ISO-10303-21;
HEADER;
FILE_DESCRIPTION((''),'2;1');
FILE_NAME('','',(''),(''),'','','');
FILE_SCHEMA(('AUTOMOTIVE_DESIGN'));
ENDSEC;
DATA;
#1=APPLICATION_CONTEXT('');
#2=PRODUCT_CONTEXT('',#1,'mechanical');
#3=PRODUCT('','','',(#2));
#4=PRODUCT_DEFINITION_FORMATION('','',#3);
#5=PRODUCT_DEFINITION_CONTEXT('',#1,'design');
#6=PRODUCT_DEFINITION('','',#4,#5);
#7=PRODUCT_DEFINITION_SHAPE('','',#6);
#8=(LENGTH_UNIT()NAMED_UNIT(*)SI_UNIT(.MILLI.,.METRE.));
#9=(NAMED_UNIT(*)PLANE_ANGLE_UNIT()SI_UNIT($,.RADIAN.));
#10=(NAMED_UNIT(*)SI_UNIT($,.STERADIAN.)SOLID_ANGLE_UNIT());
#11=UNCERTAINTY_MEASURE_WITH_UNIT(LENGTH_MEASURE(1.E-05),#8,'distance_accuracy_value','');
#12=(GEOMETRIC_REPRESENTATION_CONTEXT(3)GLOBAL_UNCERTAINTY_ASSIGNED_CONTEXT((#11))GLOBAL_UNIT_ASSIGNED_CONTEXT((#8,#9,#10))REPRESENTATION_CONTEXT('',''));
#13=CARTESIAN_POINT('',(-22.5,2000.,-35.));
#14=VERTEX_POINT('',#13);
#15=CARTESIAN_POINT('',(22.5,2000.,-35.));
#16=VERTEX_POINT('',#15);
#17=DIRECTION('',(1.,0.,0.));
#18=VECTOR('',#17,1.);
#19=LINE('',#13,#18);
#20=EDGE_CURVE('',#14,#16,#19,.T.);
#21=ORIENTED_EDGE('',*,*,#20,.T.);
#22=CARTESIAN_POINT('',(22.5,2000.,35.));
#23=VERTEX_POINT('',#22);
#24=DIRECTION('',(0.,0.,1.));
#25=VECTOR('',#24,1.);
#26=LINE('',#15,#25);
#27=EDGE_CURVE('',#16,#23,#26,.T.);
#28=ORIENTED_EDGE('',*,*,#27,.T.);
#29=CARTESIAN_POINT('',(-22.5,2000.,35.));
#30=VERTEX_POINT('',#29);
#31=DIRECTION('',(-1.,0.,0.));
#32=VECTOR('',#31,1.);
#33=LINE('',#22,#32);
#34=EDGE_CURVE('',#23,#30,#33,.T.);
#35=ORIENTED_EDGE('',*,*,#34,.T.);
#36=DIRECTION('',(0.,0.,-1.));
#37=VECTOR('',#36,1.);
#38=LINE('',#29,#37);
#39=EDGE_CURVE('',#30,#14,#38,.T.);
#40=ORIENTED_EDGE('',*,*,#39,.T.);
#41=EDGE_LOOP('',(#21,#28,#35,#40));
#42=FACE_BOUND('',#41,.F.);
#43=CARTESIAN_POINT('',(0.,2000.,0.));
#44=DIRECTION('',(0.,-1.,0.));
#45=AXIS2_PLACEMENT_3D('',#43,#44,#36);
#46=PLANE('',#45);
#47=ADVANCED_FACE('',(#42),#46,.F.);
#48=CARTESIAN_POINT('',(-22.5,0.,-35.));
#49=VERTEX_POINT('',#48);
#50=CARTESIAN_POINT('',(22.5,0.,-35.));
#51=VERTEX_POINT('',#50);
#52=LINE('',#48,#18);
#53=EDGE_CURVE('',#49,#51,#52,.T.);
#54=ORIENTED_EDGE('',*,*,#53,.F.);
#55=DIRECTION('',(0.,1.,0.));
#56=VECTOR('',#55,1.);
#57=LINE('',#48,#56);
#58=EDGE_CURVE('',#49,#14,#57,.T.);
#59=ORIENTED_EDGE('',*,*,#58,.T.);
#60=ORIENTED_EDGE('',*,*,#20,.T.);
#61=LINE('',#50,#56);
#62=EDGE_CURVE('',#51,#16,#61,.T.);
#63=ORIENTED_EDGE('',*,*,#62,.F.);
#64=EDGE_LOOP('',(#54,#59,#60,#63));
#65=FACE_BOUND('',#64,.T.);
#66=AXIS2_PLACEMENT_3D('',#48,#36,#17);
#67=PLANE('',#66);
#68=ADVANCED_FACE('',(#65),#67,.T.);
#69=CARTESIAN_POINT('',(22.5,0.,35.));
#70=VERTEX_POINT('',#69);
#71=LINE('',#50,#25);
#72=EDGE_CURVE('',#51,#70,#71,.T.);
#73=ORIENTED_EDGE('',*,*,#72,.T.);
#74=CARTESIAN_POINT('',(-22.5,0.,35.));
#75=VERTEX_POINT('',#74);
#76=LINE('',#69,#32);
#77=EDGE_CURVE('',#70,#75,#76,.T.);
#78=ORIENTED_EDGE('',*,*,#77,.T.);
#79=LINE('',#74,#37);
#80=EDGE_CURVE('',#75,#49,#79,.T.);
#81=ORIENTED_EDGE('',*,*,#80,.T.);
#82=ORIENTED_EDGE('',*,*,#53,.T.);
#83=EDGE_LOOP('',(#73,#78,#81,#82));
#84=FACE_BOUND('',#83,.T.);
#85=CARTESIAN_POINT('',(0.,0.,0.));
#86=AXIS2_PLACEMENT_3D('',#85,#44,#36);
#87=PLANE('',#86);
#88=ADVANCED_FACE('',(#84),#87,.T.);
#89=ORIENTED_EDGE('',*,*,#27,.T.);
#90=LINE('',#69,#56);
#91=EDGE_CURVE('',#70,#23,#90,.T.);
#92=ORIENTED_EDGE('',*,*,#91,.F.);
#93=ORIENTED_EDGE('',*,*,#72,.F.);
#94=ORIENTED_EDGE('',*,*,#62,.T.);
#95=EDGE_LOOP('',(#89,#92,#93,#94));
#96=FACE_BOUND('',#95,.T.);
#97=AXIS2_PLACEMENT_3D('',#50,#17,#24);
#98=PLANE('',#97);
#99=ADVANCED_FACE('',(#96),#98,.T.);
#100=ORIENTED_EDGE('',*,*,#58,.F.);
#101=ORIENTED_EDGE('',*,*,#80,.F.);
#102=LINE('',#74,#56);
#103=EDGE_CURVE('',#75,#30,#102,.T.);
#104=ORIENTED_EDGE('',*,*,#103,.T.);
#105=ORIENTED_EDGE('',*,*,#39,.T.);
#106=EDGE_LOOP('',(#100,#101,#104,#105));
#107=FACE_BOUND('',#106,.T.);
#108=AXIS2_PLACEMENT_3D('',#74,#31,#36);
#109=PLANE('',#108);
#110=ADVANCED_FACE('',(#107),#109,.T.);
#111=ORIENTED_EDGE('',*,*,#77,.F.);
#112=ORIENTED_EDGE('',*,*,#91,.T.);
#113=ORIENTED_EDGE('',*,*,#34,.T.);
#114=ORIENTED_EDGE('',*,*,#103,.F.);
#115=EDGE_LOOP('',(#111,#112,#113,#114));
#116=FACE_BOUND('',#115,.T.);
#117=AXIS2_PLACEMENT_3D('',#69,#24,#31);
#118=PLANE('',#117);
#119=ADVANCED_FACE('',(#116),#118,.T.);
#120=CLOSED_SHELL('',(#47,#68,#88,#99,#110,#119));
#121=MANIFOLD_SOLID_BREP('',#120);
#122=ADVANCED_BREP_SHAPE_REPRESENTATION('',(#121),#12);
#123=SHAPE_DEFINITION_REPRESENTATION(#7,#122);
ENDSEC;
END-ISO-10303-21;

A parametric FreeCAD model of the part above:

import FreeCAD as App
import Part
import Sketcher
from FreeCAD import Vector
Q = App.Units.Quantity


def add_polygon(sketch, points):
    """Adds a closed chain of lines whose ends are joined by coincident constraints."""
    first, n = sketch.GeometryCount, len(points)
    for a, b in zip(points, points[1:] + points[:1]):
        sketch.addGeometry(Part.LineSegment(App.Vector(*a, 0), App.Vector(*b, 0)), False)
    for i in range(n):
        sketch.addConstraint(Sketcher.Constraint("Coincident", first + i, 2, first + (i + 1) % n, 1))

doc = App.newDocument("Part")
body = doc.addObject("PartDesign::Body", "Body")

sketch1 = body.newObject("Sketcher::SketchObject", "Sketch")
sketch1.AttachmentSupport = (doc.getObject("XZ_Plane"), [""])
sketch1.MapMode = "FlatFace"
add_polygon(sketch1, [(-22, 35), (-22, -35), (22, -35), (22, 35)])
sketch1.addConstraint([
    Sketcher.Constraint("Vertical", 0),
    Sketcher.Constraint("Horizontal", 1),
    Sketcher.Constraint("Vertical", 2),
    Sketcher.Constraint("Horizontal", 3),
    Sketcher.Constraint("Symmetric", 0, 2, 2, 2, -1, 1),
    Sketcher.Constraint("DistanceX", 1, 1, 1, 2, Q("45 mm")),
    Sketcher.Constraint("DistanceY", 0, 2, 0, 1, Q("70 mm")),
])
pad1 = body.newObject("PartDesign::Pad", "Pad")
pad1.Profile = sketch1
pad1.Length = 2000
pad1.Reversed = True

doc.recompute()
